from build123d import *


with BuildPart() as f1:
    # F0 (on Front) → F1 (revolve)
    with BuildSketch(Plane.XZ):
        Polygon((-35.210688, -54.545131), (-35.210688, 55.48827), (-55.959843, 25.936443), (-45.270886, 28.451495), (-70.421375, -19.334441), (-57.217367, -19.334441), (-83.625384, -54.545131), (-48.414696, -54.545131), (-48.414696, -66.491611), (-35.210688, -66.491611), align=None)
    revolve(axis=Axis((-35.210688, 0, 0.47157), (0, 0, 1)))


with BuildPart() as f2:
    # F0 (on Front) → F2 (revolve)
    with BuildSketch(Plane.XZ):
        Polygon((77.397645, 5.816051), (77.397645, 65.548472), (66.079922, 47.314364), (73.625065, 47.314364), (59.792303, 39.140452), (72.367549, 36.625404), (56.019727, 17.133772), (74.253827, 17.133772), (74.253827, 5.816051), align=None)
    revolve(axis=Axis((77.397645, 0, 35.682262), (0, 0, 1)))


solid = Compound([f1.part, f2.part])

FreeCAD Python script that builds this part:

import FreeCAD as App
import Part
import Sketcher
from FreeCAD import Vector
Q = App.Units.Quantity


def add_polygon(sketch, points):
    """Adds a closed chain of lines whose ends are joined by coincident constraints."""
    first, n = sketch.GeometryCount, len(points)
    for a, b in zip(points, points[1:] + points[:1]):
        sketch.addGeometry(Part.LineSegment(App.Vector(*a, 0), App.Vector(*b, 0)), False)
    for i in range(n):
        sketch.addConstraint(Sketcher.Constraint("Coincident", first + i, 2, first + (i + 1) % n, 1))

doc = App.newDocument("Part")
body = doc.addObject("PartDesign::Body", "Body")

# Sketch on XZ plane
sketch1 = doc.addObject("Sketcher::SketchObject", "Sketch")
body.addObject(sketch1)
sketch1.AttachmentSupport = (doc.XZ_Plane, [""])
sketch1.MapMode = "FlatFace"
add_polygon(sketch1, [(-35, 55), (-56, 26), (-45, 28), (-70, -19), (-57, -19), (-84, -55), (-48, -55), (-48, -66), (-35, -66)])  # lines 0-8
sketch1.addGeometry(Part.LineSegment(Vector(-35, -66, 0), Vector(-35, 55, 0)), True)  # axis
sketch1.addConstraint(Sketcher.Constraint("Horizontal", 3))
sketch1.addConstraint(Sketcher.Constraint("Horizontal", 5))
sketch1.addConstraint(Sketcher.Constraint("Vertical", 6))
sketch1.addConstraint(Sketcher.Constraint("Horizontal", 7))
sketch1.addConstraint(Sketcher.Constraint("Vertical", 8))
sketch1.addConstraint(Sketcher.Constraint("Vertical", 9))
sketch1.addConstraint(Sketcher.Constraint("Coincident", 9, 1, 7, 2))
sketch1.addConstraint(Sketcher.Constraint("Equal", 3, 7))
sketch1.addConstraint(Sketcher.Constraint("Equal", 8, 9))
sketch1.addConstraint(Sketcher.Constraint("Distance", 2, Q("2.1259998 in")))
sketch1.addConstraint(Sketcher.Constraint("DistanceX", 7, 1, 7, 2, Q("13.204008 mm")))
sketch1.addConstraint(Sketcher.Constraint("DistanceY", 6, 2, 6, 1, Q("11.94648 mm")))
sketch1.addConstraint(Sketcher.Constraint("DistanceY", 8, 1, 8, 2, Q("121.979881 mm")))
sketch1.addConstraint(Sketcher.Constraint("Distance", 1, Q("10.98086 mm")))
sketch1.addConstraint(Sketcher.Constraint("DistanceX", 5, 1, 5, 2, Q("35.210688 mm")))
sketch1.addConstraint(Sketcher.Constraint("DistanceY", 2, 2, -1, 1, Q("19.334441 mm")))
sketch1.addConstraint(Sketcher.Constraint("DistanceY", 4, 2, -1, 1, Q("54.545131 mm")))
sketch1.addConstraint(Sketcher.Constraint("DistanceX", 2, 2, 0, 2, Q("14.461532 mm")))
sketch1.addConstraint(Sketcher.Constraint("DistanceX", 2, 2, 1, 2, Q("25.150489 mm")))
sketch1.addConstraint(Sketcher.Constraint("DistanceX", 4, 2, 2, 2, Q("13.204009 mm")))
sketch1.addConstraint(Sketcher.Constraint("DistanceX", 0, 2, -1, 1, Q("55.959843 mm")))
revolution = doc.addObject("PartDesign::Revolution", "Revolution")
body.addObject(revolution)
revolution.Profile = sketch1
revolution.ReferenceAxis = (sketch1, ["Axis0"])
revolution.Angle = 360
body2 = doc.addObject("PartDesign::Body", "Body001")

# Sketch on XZ plane
sketch2 = doc.addObject("Sketcher::SketchObject", "Sketch001")
body2.addObject(sketch2)
sketch2.AttachmentSupport = (doc.getObject("XZ_Plane001"), [""])
sketch2.MapMode = "FlatFace"
add_polygon(sketch2, [(77.4, 5.8), (77.4, 65.5), (66.1, 47.3), (73.6, 47.3), (59.8, 39.1), (72.4, 36.6), (56, 17.1), (74.3, 17.1), (74.3, 5.8)])  # lines 0-8
sketch2.addGeometry(Part.LineSegment(Vector(77.4, 5.8, 0), Vector(77.4, 65.5, 0)), True)  # axis
sketch2.addConstraint(Sketcher.Constraint("Vertical", 0))
sketch2.addConstraint(Sketcher.Constraint("Horizontal", 2))
sketch2.addConstraint(Sketcher.Constraint("Horizontal", 6))
sketch2.addConstraint(Sketcher.Constraint("Vertical", 7))
sketch2.addConstraint(Sketcher.Constraint("Horizontal", 8))
sketch2.addConstraint(Sketcher.Constraint("Vertical", 9))
sketch2.addConstraint(Sketcher.Constraint("Coincident", 9, 1, 8, 2))
sketch2.addConstraint(Sketcher.Constraint("Equal", 0, 9))
sketch2.addConstraint(Sketcher.Constraint("DistanceX", 6, 1, 6, 2, Q("18.2341 mm")))
sketch2.addConstraint(Sketcher.Constraint("Distance", 3, Q("16.0673 mm")))
sketch2.addConstraint(Sketcher.Constraint("DistanceY", 0, 1, 0, 2, Q("59.732421 mm")))
sketch2.addConstraint(Sketcher.Constraint("DistanceY", 7, 2, 7, 1, Q("11.317721 mm")))
sketch2.addConstraint(Sketcher.Constraint("DistanceY", 7, 2, 3, 2, Q("33.324401 mm")))
sketch2.addConstraint(Sketcher.Constraint("DistanceX", 2, 1, 2, 2, Q("7.545143 mm")))
sketch2.addConstraint(Sketcher.Constraint("DistanceX", 8, 1, 8, 2, Q("3.143818 mm")))
sketch2.addConstraint(Sketcher.Constraint("DistanceX", -1, 1, 1, 2, Q("66.079922 mm")))
sketch2.addConstraint(Sketcher.Constraint("DistanceX", -1, 1, 4, 2, Q("72.367549 mm")))
sketch2.addConstraint(Sketcher.Constraint("DistanceY", -1, 1, 7, 2, Q("5.816051 mm")))
sketch2.addConstraint(Sketcher.Constraint("DistanceY", 1, 2, 0, 2, Q("18.234108 mm")))
sketch2.addConstraint(Sketcher.Constraint("DistanceX", 2, 2, 0, 2, Q("3.77258 mm")))
sketch2.addConstraint(Sketcher.Constraint("DistanceY", 4, 2, 2, 2, Q("10.68896 mm")))
revolution2 = doc.addObject("PartDesign::Revolution", "Revolution001")
body2.addObject(revolution2)
revolution2.Profile = sketch2
revolution2.ReferenceAxis = (sketch2, ["Axis0"])
revolution2.Angle = 360

doc.recompute()
